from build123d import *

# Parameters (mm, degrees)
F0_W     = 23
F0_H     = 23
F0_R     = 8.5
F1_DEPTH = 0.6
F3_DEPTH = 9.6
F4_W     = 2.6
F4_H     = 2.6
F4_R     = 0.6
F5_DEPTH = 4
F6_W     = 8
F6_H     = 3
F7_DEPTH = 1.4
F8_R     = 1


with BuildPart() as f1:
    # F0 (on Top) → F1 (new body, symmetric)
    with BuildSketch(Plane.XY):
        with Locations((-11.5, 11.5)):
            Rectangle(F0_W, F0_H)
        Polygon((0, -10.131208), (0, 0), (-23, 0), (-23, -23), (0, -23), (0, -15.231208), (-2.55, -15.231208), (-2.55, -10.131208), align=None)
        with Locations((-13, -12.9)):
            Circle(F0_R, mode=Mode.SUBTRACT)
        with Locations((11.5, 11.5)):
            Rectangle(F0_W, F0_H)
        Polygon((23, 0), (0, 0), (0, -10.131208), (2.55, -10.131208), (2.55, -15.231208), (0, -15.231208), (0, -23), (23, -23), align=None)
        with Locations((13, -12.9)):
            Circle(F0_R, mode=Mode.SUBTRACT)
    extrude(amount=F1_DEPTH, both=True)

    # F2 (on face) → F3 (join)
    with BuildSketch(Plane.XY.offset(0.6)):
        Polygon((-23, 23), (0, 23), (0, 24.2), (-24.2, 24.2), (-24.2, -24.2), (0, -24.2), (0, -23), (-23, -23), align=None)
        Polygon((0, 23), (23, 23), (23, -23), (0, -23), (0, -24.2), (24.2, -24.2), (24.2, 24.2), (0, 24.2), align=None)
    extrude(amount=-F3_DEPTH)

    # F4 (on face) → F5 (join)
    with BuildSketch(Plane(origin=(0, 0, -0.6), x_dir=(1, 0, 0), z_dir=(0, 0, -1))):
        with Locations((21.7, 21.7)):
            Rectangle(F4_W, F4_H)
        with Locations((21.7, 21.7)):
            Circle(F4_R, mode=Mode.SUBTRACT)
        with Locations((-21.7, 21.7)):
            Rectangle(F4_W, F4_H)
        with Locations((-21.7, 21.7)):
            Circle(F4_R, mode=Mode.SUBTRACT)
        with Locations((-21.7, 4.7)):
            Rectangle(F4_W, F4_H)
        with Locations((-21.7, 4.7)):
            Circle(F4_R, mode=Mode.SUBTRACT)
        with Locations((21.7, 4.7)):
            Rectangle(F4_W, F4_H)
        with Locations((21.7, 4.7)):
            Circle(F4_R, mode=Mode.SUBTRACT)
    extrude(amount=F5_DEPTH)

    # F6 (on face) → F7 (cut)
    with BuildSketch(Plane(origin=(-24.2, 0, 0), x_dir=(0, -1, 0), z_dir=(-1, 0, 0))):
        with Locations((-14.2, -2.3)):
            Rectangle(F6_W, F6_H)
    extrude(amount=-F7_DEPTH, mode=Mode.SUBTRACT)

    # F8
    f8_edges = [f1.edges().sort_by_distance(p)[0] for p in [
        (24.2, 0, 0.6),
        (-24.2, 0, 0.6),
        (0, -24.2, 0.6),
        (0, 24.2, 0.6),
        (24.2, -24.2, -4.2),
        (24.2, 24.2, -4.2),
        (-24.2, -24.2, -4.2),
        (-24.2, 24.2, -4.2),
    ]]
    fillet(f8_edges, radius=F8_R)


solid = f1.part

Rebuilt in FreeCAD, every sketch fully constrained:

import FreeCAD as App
import Part
import Sketcher
Q = App.Units.Quantity


def edges_at(feature, points):
    """Names of the edges that pass closest to the given points."""
    edges = feature.Shape.Edges
    near = lambda p: min(range(len(edges)), key=lambda i: edges[i].distToShape(Part.Vertex(*p))[0])
    return sorted({f"Edge{near(p) + 1}" for p in points})

doc = App.newDocument("Part")
body = doc.addObject("PartDesign::Body", "Body")

sketch1 = body.newObject("Sketcher::SketchObject", "Sketch")
sketch1.AttachmentSupport = (doc.getObject("XY_Plane"), [""])
sketch1.MapMode = "FlatFace"
sketch1.addGeometry(Part.LineSegment(App.Vector(-23, 23, 0), App.Vector(-23, -23, 0)), False)
sketch1.addGeometry(Part.LineSegment(App.Vector(-23, -23, 0), App.Vector(23, -23, 0)), False)
sketch1.addGeometry(Part.LineSegment(App.Vector(23, -23, 0), App.Vector(23, 23, 0)), False)
sketch1.addGeometry(Part.LineSegment(App.Vector(23, 23, 0), App.Vector(-23, 23, 0)), False)
sketch1.addGeometry(Part.Circle(App.Vector(-13, -13, 0), App.Vector(0, 0, 1), 8), False)
sketch1.addGeometry(Part.LineSegment(App.Vector(-3, -15, 0), App.Vector(-3, -10, 0)), False)
sketch1.addGeometry(Part.LineSegment(App.Vector(-3, -10, 0), App.Vector(3, -10, 0)), False)
sketch1.addGeometry(Part.LineSegment(App.Vector(3, -10, 0), App.Vector(3, -15, 0)), False)
sketch1.addGeometry(Part.LineSegment(App.Vector(3, -15, 0), App.Vector(-3, -15, 0)), False)
sketch1.addGeometry(Part.Circle(App.Vector(13, -13, 0), App.Vector(0, 0, 1), 8), False)
sketch1.addConstraint(Sketcher.Constraint("Coincident", 0, 2, 1, 1))
sketch1.addConstraint(Sketcher.Constraint("Coincident", 1, 2, 2, 1))
sketch1.addConstraint(Sketcher.Constraint("Coincident", 2, 2, 3, 1))
sketch1.addConstraint(Sketcher.Constraint("Coincident", 3, 2, 0, 1))
sketch1.addConstraint(Sketcher.Constraint("Coincident", 5, 2, 6, 1))
sketch1.addConstraint(Sketcher.Constraint("Coincident", 6, 2, 7, 1))
sketch1.addConstraint(Sketcher.Constraint("Coincident", 7, 2, 8, 1))
sketch1.addConstraint(Sketcher.Constraint("Coincident", 8, 2, 5, 1))
sketch1.addConstraint(Sketcher.Constraint("Vertical", 0))
sketch1.addConstraint(Sketcher.Constraint("Horizontal", 1))
sketch1.addConstraint(Sketcher.Constraint("Vertical", 2))
sketch1.addConstraint(Sketcher.Constraint("Horizontal", 3))
sketch1.addConstraint(Sketcher.Constraint("Vertical", 5))
sketch1.addConstraint(Sketcher.Constraint("Horizontal", 6))
sketch1.addConstraint(Sketcher.Constraint("Vertical", 7))
sketch1.addConstraint(Sketcher.Constraint("Horizontal", 8))
sketch1.addConstraint(Sketcher.Constraint("Equal", 4, 9))
sketch1.addConstraint(Sketcher.Constraint("Symmetric", 0, 2, 2, 2, -1, 1))
sketch1.addConstraint(Sketcher.Constraint("Symmetric", 4, 3, 9, 3, -2))
sketch1.addConstraint(Sketcher.Constraint("Equal", 3, 0))
sketch1.addConstraint(Sketcher.Constraint("Equal", 8, 5))
sketch1.addConstraint(Sketcher.Constraint("Diameter", 4, Q("17 mm")))
sketch1.addConstraint(Sketcher.Constraint("DistanceX", 1, 1, 1, 2, Q("46 mm")))
sketch1.addConstraint(Sketcher.Constraint("DistanceX", 6, 1, 6, 2, Q("5.1 mm")))
sketch1.addConstraint(Sketcher.Constraint("DistanceX", 4, 3, -1, 1, Q("13 mm")))
sketch1.addConstraint(Sketcher.Constraint("DistanceY", 4, 3, -1, 1, Q("12.9 mm")))
sketch1.addConstraint(Sketcher.Constraint("DistanceX", 5, 2, -1, 1, Q("2.55 mm")))
sketch1.addConstraint(Sketcher.Constraint("DistanceY", 5, 2, -1, 1, Q("10.131208 mm")))
pad1 = body.newObject("PartDesign::Pad", "Pad")
pad1.Profile = sketch1
pad1.Length = 1.2
pad1.Midplane = True

sketch2 = body.newObject("Sketcher::SketchObject", "Sketch001")
sketch2.AttachmentSupport = (doc.getObject("XY_Plane"), [""])
sketch2.MapMode = "FlatFace"
sketch2.AttachmentOffset = App.Placement(App.Vector(0, 0, 0.6), App.Rotation())
sketch2.addGeometry(Part.LineSegment(App.Vector(-24, 24, 0), App.Vector(-24, -24, 0)), False)
sketch2.addGeometry(Part.LineSegment(App.Vector(-24, -24, 0), App.Vector(24, -24, 0)), False)
sketch2.addGeometry(Part.LineSegment(App.Vector(24, -24, 0), App.Vector(24, 24, 0)), False)
sketch2.addGeometry(Part.LineSegment(App.Vector(24, 24, 0), App.Vector(-24, 24, 0)), False)
sketch2.addGeometry(Part.LineSegment(App.Vector(-23, 23, 0), App.Vector(23, 23, 0)), False)
sketch2.addGeometry(Part.LineSegment(App.Vector(23, 23, 0), App.Vector(23, -23, 0)), False)
sketch2.addGeometry(Part.LineSegment(App.Vector(23, -23, 0), App.Vector(-23, -23, 0)), False)
sketch2.addGeometry(Part.LineSegment(App.Vector(-23, -23, 0), App.Vector(-23, 23, 0)), False)
sketch2.addConstraint(Sketcher.Constraint("Coincident", 0, 2, 1, 1))
sketch2.addConstraint(Sketcher.Constraint("Coincident", 1, 2, 2, 1))
sketch2.addConstraint(Sketcher.Constraint("Coincident", 2, 2, 3, 1))
sketch2.addConstraint(Sketcher.Constraint("Coincident", 3, 2, 0, 1))
sketch2.addConstraint(Sketcher.Constraint("Coincident", 4, 2, 5, 1))
sketch2.addConstraint(Sketcher.Constraint("Coincident", 5, 2, 6, 1))
sketch2.addConstraint(Sketcher.Constraint("Coincident", 6, 2, 7, 1))
sketch2.addConstraint(Sketcher.Constraint("Coincident", 7, 2, 4, 1))
sketch2.addConstraint(Sketcher.Constraint("Vertical", 0))
sketch2.addConstraint(Sketcher.Constraint("Horizontal", 1))
sketch2.addConstraint(Sketcher.Constraint("Vertical", 2))
sketch2.addConstraint(Sketcher.Constraint("Horizontal", 3))
sketch2.addConstraint(Sketcher.Constraint("Horizontal", 4))
sketch2.addConstraint(Sketcher.Constraint("Vertical", 5))
sketch2.addConstraint(Sketcher.Constraint("Horizontal", 6))
sketch2.addConstraint(Sketcher.Constraint("Vertical", 7))
sketch2.addConstraint(Sketcher.Constraint("Symmetric", 0, 2, 2, 2, -1, 1))
sketch2.addConstraint(Sketcher.Constraint("Symmetric", 4, 2, 6, 2, -1, 1))
sketch2.addConstraint(Sketcher.Constraint("Equal", 3, 0))
sketch2.addConstraint(Sketcher.Constraint("Equal", 6, 5))
sketch2.addConstraint(Sketcher.Constraint("DistanceX", 4, 1, 4, 2, Q("46 mm")))
sketch2.addConstraint(Sketcher.Constraint("DistanceX", 1, 1, 1, 2, Q("48.4 mm")))
pad2 = body.newObject("PartDesign::Pad", "Pad001")
pad2.Profile = sketch2
pad2.Length = 9.6
pad2.Reversed = True

sketch3 = body.newObject("Sketcher::SketchObject", "Sketch002")
sketch3.AttachmentSupport = (doc.getObject("XY_Plane"), [""])
sketch3.MapMode = "FlatFace"
sketch3.AttachmentOffset = App.Placement(App.Vector(0, 0, -0.6), App.Rotation())
sketch3.addGeometry(Part.LineSegment(App.Vector(20.4, -23, 0), App.Vector(20.4, -20.4, 0)), False)
sketch3.addGeometry(Part.LineSegment(App.Vector(20.4, -20.4, 0), App.Vector(23, -20.4, 0)), False)
sketch3.addGeometry(Part.LineSegment(App.Vector(23, -20.4, 0), App.Vector(23, -23, 0)), False)
sketch3.addGeometry(Part.LineSegment(App.Vector(23, -23, 0), App.Vector(20.4, -23, 0)), False)
sketch3.addGeometry(Part.Circle(App.Vector(21.7, -21.7, 0), App.Vector(0, 0, 1), 0.6), False)
sketch3.addGeometry(Part.LineSegment(App.Vector(-23, -23, 0), App.Vector(-23, -20.4, 0)), False)
sketch3.addGeometry(Part.LineSegment(App.Vector(-23, -20.4, 0), App.Vector(-20.4, -20.4, 0)), False)
sketch3.addGeometry(Part.LineSegment(App.Vector(-20.4, -20.4, 0), App.Vector(-20.4, -23, 0)), False)
sketch3.addGeometry(Part.LineSegment(App.Vector(-20.4, -23, 0), App.Vector(-23, -23, 0)), False)
sketch3.addGeometry(Part.Circle(App.Vector(-21.7, -21.7, 0), App.Vector(0, 0, 1), 0.6), False)
sketch3.addGeometry(Part.LineSegment(App.Vector(-23, -6, 0), App.Vector(-23, -3.4, 0)), False)
sketch3.addGeometry(Part.LineSegment(App.Vector(-23, -3.4, 0), App.Vector(-20.4, -3.4, 0)), False)
sketch3.addGeometry(Part.LineSegment(App.Vector(-20.4, -3.4, 0), App.Vector(-20.4, -6, 0)), False)
sketch3.addGeometry(Part.LineSegment(App.Vector(-20.4, -6, 0), App.Vector(-23, -6, 0)), False)
sketch3.addGeometry(Part.Circle(App.Vector(-21.7, -4.7, 0), App.Vector(0, 0, 1), 0.6), False)
sketch3.addGeometry(Part.LineSegment(App.Vector(20.4, -6, 0), App.Vector(20.4, -3.4, 0)), False)
sketch3.addGeometry(Part.LineSegment(App.Vector(20.4, -3.4, 0), App.Vector(23, -3.4, 0)), False)
sketch3.addGeometry(Part.LineSegment(App.Vector(23, -3.4, 0), App.Vector(23, -6, 0)), False)
sketch3.addGeometry(Part.LineSegment(App.Vector(23, -6, 0), App.Vector(20.4, -6, 0)), False)
sketch3.addGeometry(Part.Circle(App.Vector(21.7, -4.7, 0), App.Vector(0, 0, 1), 0.6), False)
sketch3.addConstraint(Sketcher.Constraint("Coincident", 0, 2, 1, 1))
sketch3.addConstraint(Sketcher.Constraint("Coincident", 1, 2, 2, 1))
sketch3.addConstraint(Sketcher.Constraint("Coincident", 2, 2, 3, 1))
sketch3.addConstraint(Sketcher.Constraint("Coincident", 3, 2, 0, 1))
sketch3.addConstraint(Sketcher.Constraint("Coincident", 5, 2, 6, 1))
sketch3.addConstraint(Sketcher.Constraint("Coincident", 6, 2, 7, 1))
sketch3.addConstraint(Sketcher.Constraint("Coincident", 7, 2, 8, 1))
sketch3.addConstraint(Sketcher.Constraint("Coincident", 8, 2, 5, 1))
sketch3.addConstraint(Sketcher.Constraint("Coincident", 10, 2, 11, 1))
sketch3.addConstraint(Sketcher.Constraint("Coincident", 11, 2, 12, 1))
sketch3.addConstraint(Sketcher.Constraint("Coincident", 12, 2, 13, 1))
sketch3.addConstraint(Sketcher.Constraint("Coincident", 13, 2, 10, 1))
sketch3.addConstraint(Sketcher.Constraint("Coincident", 15, 2, 16, 1))
sketch3.addConstraint(Sketcher.Constraint("Coincident", 16, 2, 17, 1))
sketch3.addConstraint(Sketcher.Constraint("Coincident", 17, 2, 18, 1))
sketch3.addConstraint(Sketcher.Constraint("Coincident", 18, 2, 15, 1))
sketch3.addConstraint(Sketcher.Constraint("Vertical", 0))
sketch3.addConstraint(Sketcher.Constraint("Horizontal", 1))
sketch3.addConstraint(Sketcher.Constraint("Vertical", 2))
sketch3.addConstraint(Sketcher.Constraint("Horizontal", 3))
sketch3.addConstraint(Sketcher.Constraint("Vertical", 5))
sketch3.addConstraint(Sketcher.Constraint("Horizontal", 6))
sketch3.addConstraint(Sketcher.Constraint("Vertical", 7))
sketch3.addConstraint(Sketcher.Constraint("Horizontal", 8))
sketch3.addConstraint(Sketcher.Constraint("Vertical", 10))
sketch3.addConstraint(Sketcher.Constraint("Horizontal", 11))
sketch3.addConstraint(Sketcher.Constraint("Vertical", 12))
sketch3.addConstraint(Sketcher.Constraint("Horizontal", 13))
sketch3.addConstraint(Sketcher.Constraint("Vertical", 15))
sketch3.addConstraint(Sketcher.Constraint("Horizontal", 16))
sketch3.addConstraint(Sketcher.Constraint("Vertical", 17))
sketch3.addConstraint(Sketcher.Constraint("Horizontal", 18))
sketch3.addConstraint(Sketcher.Constraint("Equal", 4, 9))
sketch3.addConstraint(Sketcher.Constraint("Equal", 9, 14))
sketch3.addConstraint(Sketcher.Constraint("Equal", 14, 19))
sketch3.addConstraint(Sketcher.Constraint("Symmetric", 4, 3, 9, 3, -2))
sketch3.addConstraint(Sketcher.Constraint("Symmetric", 14, 3, 19, 3, -2))
sketch3.addConstraint(Sketcher.Constraint("Symmetric", 1, 2, 5, 2, -2))
sketch3.addConstraint(Sketcher.Constraint("Symmetric", 3, 2, 7, 2, -2))
sketch3.addConstraint(Sketcher.Constraint("Symmetric", 11, 2, 15, 2, -2))
sketch3.addConstraint(Sketcher.Constraint("Symmetric", 13, 2, 17, 2, -2))
sketch3.addConstraint(Sketcher.Constraint("Vertical", 9, 3, 14, 3))
sketch3.addConstraint(Sketcher.Constraint("Vertical", 8, 2, 10, 2))
sketch3.addConstraint(Sketcher.Constraint("Vertical", 7, 2, 11, 2))
sketch3.addConstraint(Sketcher.Constraint("Equal", 18, 0))
sketch3.addConstraint(Sketcher.Constraint("Equal", 7, 10))
sketch3.addConstraint(Sketcher.Constraint("Diameter", 4, Q("1.2 mm")))
sketch3.addConstraint(Sketcher.Constraint("DistanceX", 1, 1, 1, 2, Q("2.6 mm")))
sketch3.addConstraint(Sketcher.Constraint("DistanceX", -1, 1, 1, 2, Q("23 mm")))
sketch3.addConstraint(Sketcher.Constraint("DistanceY", 2, 2, -1, 1, Q("23 mm")))
sketch3.addConstraint(Sketcher.Constraint("DistanceY", 12, 2, -1, 1, Q("6 mm")))
sketch3.addConstraint(Sketcher.Constraint("DistanceY", 9, 3, 14, 3, Q("17 mm")))
sketch3.addConstraint(Sketcher.Constraint("DistanceX", -1, 1, 4, 3, Q("21.7 mm")))
sketch3.addConstraint(Sketcher.Constraint("DistanceY", 4, 3, -1, 1, Q("21.7 mm")))
pad3 = body.newObject("PartDesign::Pad", "Pad002")
pad3.Profile = sketch3
pad3.Length = 4
pad3.Reversed = True

sketch4 = body.newObject("Sketcher::SketchObject", "Sketch003")
sketch4.AttachmentSupport = (doc.getObject("YZ_Plane"), [""])
sketch4.MapMode = "FlatFace"
sketch4.AttachmentOffset = App.Placement(App.Vector(0, 0, -24.2), App.Rotation())
sketch4.addGeometry(Part.LineSegment(App.Vector(18.2, -0.8, 0), App.Vector(18.2, -3.8, 0)), False)
sketch4.addGeometry(Part.LineSegment(App.Vector(18.2, -3.8, 0), App.Vector(10.2, -3.8, 0)), False)
sketch4.addGeometry(Part.LineSegment(App.Vector(10.2, -3.8, 0), App.Vector(10.2, -0.8, 0)), False)
sketch4.addGeometry(Part.LineSegment(App.Vector(10.2, -0.8, 0), App.Vector(18.2, -0.8, 0)), False)
sketch4.addConstraint(Sketcher.Constraint("Coincident", 0, 2, 1, 1))
sketch4.addConstraint(Sketcher.Constraint("Coincident", 1, 2, 2, 1))
sketch4.addConstraint(Sketcher.Constraint("Coincident", 2, 2, 3, 1))
sketch4.addConstraint(Sketcher.Constraint("Coincident", 3, 2, 0, 1))
sketch4.addConstraint(Sketcher.Constraint("Vertical", 0))
sketch4.addConstraint(Sketcher.Constraint("Horizontal", 1))
sketch4.addConstraint(Sketcher.Constraint("Vertical", 2))
sketch4.addConstraint(Sketcher.Constraint("Horizontal", 3))
sketch4.addConstraint(Sketcher.Constraint("DistanceX", 1, 2, 1, 1, Q("8 mm")))
sketch4.addConstraint(Sketcher.Constraint("DistanceY", 0, 2, 0, 1, Q("3 mm")))
sketch4.addConstraint(Sketcher.Constraint("DistanceX", -1, 1, 0, 2, Q("18.2 mm")))
sketch4.addConstraint(Sketcher.Constraint("DistanceY", 0, 2, -1, 1, Q("3.8 mm")))
pocket1 = body.newObject("PartDesign::Pocket", "Pocket")
pocket1.Profile = sketch4
pocket1.Length = 1.4
pocket1.Reversed = True
doc.recompute()

fillet = body.newObject("PartDesign::Fillet", "Fillet")
fillet.Base = (pocket1, edges_at(pocket1, [
    (24.2, 0, 0.6),
    (-24.2, 0, 0.6),
    (0, -24.2, 0.6),
    (0, 24.2, 0.6),
    (24.2, -24.2, -4.2),
    (24.2, 24.2, -4.2),
    (-24.2, -24.2, -4.2),
    (-24.2, 24.2, -4.2),
]))
fillet.Radius = 1

doc.recompute()
